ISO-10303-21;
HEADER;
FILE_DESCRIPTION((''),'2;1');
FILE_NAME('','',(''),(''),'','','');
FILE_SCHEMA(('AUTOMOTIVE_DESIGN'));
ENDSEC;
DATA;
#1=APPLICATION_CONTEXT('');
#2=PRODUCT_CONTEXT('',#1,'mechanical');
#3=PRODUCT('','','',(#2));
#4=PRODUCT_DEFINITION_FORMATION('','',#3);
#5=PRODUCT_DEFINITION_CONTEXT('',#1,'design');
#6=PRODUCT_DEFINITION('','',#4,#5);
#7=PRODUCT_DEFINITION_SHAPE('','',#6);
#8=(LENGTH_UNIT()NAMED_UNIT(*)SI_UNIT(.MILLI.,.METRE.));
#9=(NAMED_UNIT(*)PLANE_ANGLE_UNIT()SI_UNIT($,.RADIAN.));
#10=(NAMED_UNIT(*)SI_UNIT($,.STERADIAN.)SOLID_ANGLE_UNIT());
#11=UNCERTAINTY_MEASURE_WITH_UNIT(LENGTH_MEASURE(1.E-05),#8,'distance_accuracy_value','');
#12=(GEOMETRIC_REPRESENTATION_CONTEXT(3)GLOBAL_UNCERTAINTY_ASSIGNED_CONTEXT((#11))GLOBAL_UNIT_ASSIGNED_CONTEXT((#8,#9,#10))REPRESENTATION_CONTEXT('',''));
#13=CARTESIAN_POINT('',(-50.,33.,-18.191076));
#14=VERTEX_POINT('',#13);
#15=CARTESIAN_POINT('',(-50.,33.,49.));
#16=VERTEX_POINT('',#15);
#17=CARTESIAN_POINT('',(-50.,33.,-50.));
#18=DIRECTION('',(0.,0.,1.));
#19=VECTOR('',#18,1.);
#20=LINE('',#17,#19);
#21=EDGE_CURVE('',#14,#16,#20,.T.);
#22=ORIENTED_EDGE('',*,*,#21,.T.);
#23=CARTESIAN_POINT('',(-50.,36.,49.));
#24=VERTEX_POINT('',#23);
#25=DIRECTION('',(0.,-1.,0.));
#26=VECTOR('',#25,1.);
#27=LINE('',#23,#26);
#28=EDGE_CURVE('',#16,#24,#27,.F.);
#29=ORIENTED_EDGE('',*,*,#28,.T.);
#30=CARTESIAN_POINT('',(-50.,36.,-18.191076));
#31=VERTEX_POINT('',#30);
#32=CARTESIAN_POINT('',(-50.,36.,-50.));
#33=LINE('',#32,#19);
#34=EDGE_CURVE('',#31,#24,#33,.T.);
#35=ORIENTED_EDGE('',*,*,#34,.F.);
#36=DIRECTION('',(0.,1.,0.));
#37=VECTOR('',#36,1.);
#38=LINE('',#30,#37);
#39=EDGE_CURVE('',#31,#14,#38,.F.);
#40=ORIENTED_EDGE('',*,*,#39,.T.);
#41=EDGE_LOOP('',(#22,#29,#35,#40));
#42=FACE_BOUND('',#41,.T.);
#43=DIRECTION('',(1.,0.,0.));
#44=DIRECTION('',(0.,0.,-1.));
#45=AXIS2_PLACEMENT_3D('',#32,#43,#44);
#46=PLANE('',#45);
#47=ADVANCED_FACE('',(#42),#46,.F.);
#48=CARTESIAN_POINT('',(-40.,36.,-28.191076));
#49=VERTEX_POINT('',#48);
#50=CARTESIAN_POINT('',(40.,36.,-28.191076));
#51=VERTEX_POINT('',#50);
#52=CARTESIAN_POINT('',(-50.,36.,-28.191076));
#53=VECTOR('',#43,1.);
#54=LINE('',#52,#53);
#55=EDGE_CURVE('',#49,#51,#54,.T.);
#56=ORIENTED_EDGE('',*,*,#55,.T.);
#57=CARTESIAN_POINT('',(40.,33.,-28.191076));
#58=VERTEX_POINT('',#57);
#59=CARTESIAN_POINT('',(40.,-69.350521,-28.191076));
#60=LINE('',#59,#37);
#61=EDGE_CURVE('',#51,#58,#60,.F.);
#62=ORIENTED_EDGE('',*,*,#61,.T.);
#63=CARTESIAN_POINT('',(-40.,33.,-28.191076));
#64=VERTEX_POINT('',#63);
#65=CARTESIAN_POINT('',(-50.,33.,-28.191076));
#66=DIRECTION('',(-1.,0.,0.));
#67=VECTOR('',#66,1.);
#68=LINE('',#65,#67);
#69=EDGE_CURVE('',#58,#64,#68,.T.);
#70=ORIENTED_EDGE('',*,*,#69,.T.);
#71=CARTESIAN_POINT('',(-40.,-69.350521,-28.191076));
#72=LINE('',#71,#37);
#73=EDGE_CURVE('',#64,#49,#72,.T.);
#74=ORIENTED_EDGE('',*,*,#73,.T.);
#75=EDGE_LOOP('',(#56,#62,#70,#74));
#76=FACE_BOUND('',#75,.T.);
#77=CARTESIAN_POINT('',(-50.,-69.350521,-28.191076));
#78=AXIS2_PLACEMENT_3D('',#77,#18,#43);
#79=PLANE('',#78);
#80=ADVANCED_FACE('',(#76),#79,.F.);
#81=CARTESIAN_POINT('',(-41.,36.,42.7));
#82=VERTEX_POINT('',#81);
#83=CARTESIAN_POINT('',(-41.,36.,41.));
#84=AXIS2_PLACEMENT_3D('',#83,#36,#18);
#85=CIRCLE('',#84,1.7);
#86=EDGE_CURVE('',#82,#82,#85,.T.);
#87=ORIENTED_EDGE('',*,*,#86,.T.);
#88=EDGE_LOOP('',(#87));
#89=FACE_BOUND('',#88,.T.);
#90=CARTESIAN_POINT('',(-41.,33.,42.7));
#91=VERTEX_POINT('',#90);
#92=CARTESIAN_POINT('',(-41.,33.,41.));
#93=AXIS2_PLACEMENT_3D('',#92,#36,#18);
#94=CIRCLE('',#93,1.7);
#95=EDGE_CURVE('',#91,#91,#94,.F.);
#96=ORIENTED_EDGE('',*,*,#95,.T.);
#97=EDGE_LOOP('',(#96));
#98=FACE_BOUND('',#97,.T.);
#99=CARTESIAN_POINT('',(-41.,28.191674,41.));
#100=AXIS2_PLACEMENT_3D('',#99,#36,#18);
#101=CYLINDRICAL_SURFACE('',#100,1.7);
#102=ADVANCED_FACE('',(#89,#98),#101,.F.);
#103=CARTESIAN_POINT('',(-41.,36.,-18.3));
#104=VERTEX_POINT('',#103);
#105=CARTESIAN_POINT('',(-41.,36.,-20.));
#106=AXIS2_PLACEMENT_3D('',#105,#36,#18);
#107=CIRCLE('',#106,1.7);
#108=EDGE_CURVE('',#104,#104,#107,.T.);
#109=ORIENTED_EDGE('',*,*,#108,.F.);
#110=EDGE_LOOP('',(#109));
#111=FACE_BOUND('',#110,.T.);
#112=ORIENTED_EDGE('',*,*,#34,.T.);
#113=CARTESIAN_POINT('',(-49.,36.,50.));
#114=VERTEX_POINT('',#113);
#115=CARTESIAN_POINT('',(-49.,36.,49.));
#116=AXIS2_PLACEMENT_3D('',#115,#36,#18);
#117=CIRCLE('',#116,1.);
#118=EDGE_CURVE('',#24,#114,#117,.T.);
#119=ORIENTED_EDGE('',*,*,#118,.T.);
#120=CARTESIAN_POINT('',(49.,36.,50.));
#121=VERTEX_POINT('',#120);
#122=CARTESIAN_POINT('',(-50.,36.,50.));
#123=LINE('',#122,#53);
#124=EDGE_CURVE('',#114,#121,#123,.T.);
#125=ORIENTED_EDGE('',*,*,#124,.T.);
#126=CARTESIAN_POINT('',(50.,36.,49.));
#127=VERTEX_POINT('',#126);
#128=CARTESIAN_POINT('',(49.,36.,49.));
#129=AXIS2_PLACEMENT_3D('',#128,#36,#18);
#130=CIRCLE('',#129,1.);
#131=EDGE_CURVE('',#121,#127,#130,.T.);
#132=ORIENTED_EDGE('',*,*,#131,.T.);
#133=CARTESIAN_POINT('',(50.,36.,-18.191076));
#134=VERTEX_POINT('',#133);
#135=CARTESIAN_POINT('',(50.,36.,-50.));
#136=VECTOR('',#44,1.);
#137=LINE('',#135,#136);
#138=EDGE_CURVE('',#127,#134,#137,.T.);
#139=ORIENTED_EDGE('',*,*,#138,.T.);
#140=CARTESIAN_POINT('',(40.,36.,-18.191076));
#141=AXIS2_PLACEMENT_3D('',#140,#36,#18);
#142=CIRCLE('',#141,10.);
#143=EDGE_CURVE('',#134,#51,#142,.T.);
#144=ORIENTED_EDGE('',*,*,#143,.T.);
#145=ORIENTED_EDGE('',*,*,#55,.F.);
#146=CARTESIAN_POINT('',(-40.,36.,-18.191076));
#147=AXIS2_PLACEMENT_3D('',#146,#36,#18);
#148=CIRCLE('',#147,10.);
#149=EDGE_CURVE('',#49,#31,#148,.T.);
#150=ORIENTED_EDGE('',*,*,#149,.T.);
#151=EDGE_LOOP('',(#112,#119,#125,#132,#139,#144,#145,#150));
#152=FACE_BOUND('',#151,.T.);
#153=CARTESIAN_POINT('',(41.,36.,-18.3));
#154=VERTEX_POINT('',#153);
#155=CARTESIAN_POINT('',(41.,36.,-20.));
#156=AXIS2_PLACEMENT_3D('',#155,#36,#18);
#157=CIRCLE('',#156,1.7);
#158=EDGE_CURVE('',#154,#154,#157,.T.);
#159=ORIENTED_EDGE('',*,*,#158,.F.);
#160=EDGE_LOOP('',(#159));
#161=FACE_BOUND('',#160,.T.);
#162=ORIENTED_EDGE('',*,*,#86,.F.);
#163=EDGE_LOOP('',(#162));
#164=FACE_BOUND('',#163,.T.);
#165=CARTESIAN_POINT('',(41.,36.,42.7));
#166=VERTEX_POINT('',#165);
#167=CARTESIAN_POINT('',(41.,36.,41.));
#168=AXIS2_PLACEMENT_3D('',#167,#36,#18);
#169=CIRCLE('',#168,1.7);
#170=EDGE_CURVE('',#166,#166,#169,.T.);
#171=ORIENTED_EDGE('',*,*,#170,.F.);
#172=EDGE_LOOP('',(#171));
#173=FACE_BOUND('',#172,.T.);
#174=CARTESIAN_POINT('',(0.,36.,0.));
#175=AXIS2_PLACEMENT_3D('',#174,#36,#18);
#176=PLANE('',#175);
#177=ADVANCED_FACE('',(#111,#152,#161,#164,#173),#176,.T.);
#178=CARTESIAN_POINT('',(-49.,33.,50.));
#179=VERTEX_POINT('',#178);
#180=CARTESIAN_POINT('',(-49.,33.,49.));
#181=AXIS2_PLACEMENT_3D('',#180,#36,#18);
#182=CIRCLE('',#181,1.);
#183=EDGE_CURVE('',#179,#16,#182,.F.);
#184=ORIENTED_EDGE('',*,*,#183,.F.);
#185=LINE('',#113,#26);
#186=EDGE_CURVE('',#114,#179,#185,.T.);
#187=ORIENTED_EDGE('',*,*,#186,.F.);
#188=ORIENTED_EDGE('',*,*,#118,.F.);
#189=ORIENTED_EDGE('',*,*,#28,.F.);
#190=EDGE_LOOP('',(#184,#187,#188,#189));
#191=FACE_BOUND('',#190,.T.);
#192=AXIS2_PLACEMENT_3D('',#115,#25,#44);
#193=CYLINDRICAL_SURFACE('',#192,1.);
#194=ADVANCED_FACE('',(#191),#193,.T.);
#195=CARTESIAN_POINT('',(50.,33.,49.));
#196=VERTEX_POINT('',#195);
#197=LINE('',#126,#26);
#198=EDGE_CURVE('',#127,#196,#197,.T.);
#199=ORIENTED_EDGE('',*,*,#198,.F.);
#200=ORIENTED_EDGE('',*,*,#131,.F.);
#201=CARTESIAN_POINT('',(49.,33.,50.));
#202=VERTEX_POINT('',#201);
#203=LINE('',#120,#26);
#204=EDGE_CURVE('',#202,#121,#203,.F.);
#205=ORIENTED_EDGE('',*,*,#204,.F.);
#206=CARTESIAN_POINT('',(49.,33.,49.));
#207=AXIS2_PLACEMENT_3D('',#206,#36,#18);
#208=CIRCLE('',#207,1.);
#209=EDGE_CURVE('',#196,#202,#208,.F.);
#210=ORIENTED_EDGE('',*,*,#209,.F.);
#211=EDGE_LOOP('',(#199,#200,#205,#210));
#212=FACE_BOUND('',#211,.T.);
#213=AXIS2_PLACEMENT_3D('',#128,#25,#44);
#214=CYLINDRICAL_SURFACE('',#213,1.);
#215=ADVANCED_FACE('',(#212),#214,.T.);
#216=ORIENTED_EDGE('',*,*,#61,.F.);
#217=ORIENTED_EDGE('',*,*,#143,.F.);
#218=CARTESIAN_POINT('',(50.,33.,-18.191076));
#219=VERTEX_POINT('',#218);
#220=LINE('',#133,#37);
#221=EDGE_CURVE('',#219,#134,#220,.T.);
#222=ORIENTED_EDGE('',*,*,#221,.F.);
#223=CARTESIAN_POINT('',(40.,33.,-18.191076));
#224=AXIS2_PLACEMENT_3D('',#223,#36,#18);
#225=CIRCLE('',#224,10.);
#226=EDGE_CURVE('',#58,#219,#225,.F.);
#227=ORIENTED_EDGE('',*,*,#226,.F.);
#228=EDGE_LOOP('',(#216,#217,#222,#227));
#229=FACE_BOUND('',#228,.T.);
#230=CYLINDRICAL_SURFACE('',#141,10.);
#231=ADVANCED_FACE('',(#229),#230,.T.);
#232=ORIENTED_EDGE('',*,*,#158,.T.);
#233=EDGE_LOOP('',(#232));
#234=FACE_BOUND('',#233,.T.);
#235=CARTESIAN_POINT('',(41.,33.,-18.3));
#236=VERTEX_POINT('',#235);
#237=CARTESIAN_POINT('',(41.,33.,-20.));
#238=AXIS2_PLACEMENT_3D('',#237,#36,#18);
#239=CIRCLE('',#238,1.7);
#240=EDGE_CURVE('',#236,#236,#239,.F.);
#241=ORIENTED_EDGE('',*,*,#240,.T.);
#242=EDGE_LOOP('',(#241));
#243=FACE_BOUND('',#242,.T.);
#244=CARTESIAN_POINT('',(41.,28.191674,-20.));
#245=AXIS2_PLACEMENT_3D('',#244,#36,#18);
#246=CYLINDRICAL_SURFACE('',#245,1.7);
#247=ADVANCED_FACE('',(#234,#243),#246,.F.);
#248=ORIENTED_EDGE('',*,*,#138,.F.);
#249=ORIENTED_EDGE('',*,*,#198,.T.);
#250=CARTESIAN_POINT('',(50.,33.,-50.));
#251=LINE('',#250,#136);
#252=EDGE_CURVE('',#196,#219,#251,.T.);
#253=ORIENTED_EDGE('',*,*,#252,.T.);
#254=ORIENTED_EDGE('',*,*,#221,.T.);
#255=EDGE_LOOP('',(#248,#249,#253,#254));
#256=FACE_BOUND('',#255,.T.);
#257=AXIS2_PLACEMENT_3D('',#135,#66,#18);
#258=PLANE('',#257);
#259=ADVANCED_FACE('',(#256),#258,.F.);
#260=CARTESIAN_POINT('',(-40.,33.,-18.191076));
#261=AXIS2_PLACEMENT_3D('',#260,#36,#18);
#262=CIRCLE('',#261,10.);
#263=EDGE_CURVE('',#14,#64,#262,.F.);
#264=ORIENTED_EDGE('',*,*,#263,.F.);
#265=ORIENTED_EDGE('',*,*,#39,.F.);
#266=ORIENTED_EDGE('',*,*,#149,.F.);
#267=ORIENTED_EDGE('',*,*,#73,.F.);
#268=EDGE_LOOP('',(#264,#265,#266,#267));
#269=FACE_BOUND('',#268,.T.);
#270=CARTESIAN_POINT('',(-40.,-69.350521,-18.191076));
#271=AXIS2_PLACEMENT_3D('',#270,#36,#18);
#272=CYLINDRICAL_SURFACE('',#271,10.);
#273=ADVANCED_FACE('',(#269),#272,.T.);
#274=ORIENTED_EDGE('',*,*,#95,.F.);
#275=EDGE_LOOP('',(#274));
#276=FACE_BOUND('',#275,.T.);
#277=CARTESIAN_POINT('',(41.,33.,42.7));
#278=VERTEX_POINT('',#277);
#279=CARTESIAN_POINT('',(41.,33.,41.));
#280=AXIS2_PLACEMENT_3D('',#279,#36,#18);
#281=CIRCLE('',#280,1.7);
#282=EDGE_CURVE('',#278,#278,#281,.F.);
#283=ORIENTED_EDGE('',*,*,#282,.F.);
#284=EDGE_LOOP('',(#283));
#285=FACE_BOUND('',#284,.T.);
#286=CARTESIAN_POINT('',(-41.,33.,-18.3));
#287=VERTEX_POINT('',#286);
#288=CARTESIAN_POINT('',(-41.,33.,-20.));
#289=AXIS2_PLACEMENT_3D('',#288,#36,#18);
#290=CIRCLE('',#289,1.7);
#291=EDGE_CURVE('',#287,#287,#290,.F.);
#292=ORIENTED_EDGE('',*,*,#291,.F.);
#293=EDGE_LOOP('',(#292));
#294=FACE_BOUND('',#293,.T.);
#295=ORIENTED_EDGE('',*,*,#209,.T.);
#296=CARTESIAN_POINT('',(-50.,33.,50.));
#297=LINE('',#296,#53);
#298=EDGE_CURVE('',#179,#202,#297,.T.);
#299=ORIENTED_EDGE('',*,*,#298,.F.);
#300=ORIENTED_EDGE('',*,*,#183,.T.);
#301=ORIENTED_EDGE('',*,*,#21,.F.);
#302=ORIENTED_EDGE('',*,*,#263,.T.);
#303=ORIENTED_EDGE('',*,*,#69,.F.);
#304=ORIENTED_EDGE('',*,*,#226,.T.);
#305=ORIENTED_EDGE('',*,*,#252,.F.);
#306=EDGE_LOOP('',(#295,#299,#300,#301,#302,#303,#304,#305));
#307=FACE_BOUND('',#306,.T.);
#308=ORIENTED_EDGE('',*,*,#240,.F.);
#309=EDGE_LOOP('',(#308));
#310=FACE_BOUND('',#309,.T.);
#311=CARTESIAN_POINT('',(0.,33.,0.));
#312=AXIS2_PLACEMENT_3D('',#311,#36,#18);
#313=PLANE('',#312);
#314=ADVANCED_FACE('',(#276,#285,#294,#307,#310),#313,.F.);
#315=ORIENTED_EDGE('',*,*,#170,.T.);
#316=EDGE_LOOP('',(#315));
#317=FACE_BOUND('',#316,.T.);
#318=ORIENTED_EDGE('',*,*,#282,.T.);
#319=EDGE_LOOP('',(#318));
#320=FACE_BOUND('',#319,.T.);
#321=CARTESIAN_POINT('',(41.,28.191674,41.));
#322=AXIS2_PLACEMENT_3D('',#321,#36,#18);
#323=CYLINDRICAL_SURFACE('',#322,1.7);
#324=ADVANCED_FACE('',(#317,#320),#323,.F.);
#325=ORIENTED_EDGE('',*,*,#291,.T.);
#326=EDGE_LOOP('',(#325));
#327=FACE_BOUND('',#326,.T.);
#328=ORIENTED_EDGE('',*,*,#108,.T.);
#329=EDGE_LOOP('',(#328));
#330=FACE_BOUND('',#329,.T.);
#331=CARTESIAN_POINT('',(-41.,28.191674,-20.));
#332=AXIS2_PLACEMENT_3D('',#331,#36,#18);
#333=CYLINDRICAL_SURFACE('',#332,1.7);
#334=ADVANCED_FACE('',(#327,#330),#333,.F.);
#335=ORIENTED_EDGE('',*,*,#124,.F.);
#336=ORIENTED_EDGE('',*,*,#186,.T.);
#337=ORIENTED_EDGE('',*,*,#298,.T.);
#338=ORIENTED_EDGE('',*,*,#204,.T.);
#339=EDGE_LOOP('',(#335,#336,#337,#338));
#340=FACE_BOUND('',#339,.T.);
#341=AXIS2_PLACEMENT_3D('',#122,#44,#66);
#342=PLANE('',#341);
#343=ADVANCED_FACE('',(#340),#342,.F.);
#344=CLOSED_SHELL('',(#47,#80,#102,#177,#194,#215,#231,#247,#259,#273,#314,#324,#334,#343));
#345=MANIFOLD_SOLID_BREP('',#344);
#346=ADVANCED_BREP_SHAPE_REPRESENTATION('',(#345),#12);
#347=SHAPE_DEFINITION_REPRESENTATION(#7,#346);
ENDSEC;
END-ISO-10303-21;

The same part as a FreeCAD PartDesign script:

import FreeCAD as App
import Part
import Sketcher
from FreeCAD import Vector


def edges_at(feature, points):
    """Names of the edges that pass closest to the given points."""
    edges = feature.Shape.Edges
    near = lambda p: min(range(len(edges)), key=lambda i: edges[i].distToShape(Part.Vertex(*p))[0])
    return sorted({f"Edge{near(p) + 1}" for p in points})


def add_polygon(sketch, points):
    """Adds a closed chain of lines whose ends are joined by coincident constraints."""
    first, n = sketch.GeometryCount, len(points)
    for a, b in zip(points, points[1:] + points[:1]):
        sketch.addGeometry(Part.LineSegment(App.Vector(*a, 0), App.Vector(*b, 0)), False)
    for i in range(n):
        sketch.addConstraint(Sketcher.Constraint("Coincident", first + i, 2, first + (i + 1) % n, 1))

doc = App.newDocument("Part")
body = doc.addObject("PartDesign::Body", "Body")

sketch1 = doc.addObject("Sketcher::SketchObject", "Sketch")
body.addObject(sketch1)
sketch1.AttachmentSupport = (doc.XZ_Plane, [""])
sketch1.MapMode = "FlatFace"
sketch1.AttachmentOffset = App.Placement(Vector(0, 0, -33), App.Rotation())
add_polygon(sketch1, [(-50, -50), (-50, 50), (50, 50), (50, -50)])
sketch1.addConstraint(Sketcher.Constraint("Vertical", 0))
sketch1.addConstraint(Sketcher.Constraint("Horizontal", 1))
sketch1.addConstraint(Sketcher.Constraint("Vertical", 2))
sketch1.addConstraint(Sketcher.Constraint("Horizontal", 3))
sketch1.addConstraint(Sketcher.Constraint("Symmetric", 0, 2, 2, 2, -1, 1))
sketch1.addConstraint(Sketcher.Constraint("Equal", 3, 0))
sketch1.addConstraint(Sketcher.Constraint("DistanceX", 1, 1, 1, 2, 100.0))
pad1 = doc.addObject("PartDesign::Pad", "Pad")
body.addObject(pad1)
pad1.Profile = sketch1
pad1.Length = 3
pad1.Reversed = True

sketch2 = doc.addObject("Sketcher::SketchObject", "Sketch001")
body.addObject(sketch2)
sketch2.AttachmentSupport = (doc.XZ_Plane, [""])
sketch2.MapMode = "FlatFace"
sketch2.AttachmentOffset = App.Placement(Vector(0, 0, -36), App.Rotation())
sketch2.addGeometry(Part.Circle(Vector(-41, -20, 0), Vector(0, 0, 1), 1.7), False)
sketch2.addGeometry(Part.Circle(Vector(41, -20, 0), Vector(0, 0, 1), 1.7), False)
sketch2.addGeometry(Part.Circle(Vector(41, 41, 0), Vector(0, 0, 1), 1.7), False)
sketch2.addGeometry(Part.Circle(Vector(-41, 41, 0), Vector(0, 0, 1), 1.7), False)
sketch2.addConstraint(Sketcher.Constraint("Equal", 0, 1))
sketch2.addConstraint(Sketcher.Constraint("Equal", 1, 2))
sketch2.addConstraint(Sketcher.Constraint("Equal", 2, 3))
sketch2.addConstraint(Sketcher.Constraint("Symmetric", 0, 3, 1, 3, -2))
sketch2.addConstraint(Sketcher.Constraint("Symmetric", 2, 3, 3, 3, -2))
sketch2.addConstraint(Sketcher.Constraint("Vertical", 1, 3, 2, 3))
sketch2.addConstraint(Sketcher.Constraint("Diameter", 0, 3.4))
sketch2.addConstraint(Sketcher.Constraint("DistanceX", 0, 3, -1, 1, 41.0))
sketch2.addConstraint(Sketcher.Constraint("DistanceY", 0, 3, -1, 1, 20.0))
sketch2.addConstraint(Sketcher.Constraint("DistanceY", -1, 1, 2, 3, 41.0))
pocket1 = doc.addObject("PartDesign::Pocket", "Pocket")
body.addObject(pocket1)
pocket1.Profile = sketch2
pocket1.Length = 3
pocket1.Reversed = True

sketch3 = doc.addObject("Sketcher::SketchObject", "Sketch002")
body.addObject(sketch3)
sketch3.AttachmentSupport = (doc.XZ_Plane, [""])
sketch3.MapMode = "FlatFace"
sketch3.AttachmentOffset = App.Placement(Vector(0, 0, -36), App.Rotation())
add_polygon(sketch3, [(-50, -50), (-50, -28.191076), (50, -28.191076), (50, -50)])
sketch3.addConstraint(Sketcher.Constraint("Vertical", 0))
sketch3.addConstraint(Sketcher.Constraint("Horizontal", 1))
sketch3.addConstraint(Sketcher.Constraint("Vertical", 2))
sketch3.addConstraint(Sketcher.Constraint("Horizontal", 3))
sketch3.addConstraint(Sketcher.Constraint("DistanceX", 1, 1, 1, 2, 100.0))
sketch3.addConstraint(Sketcher.Constraint("DistanceX", 0, 2, -1, 1, 50.0))
sketch3.addConstraint(Sketcher.Constraint("DistanceY", 2, 2, -1, 1, 50.0))
sketch3.addConstraint(Sketcher.Constraint("DistanceY", 0, 1, 0, 2, 21.808924))
pocket2 = doc.addObject("PartDesign::Pocket", "Pocket001")
body.addObject(pocket2)
pocket2.Profile = sketch3
pocket2.Length = 3
pocket2.Reversed = True
doc.recompute()

fillet = doc.addObject("PartDesign::Fillet", "Fillet")
body.addObject(fillet)
fillet.Base = (pocket2, edges_at(pocket2, [(-50, 34.5, -28.191), (50, 34.5, -28.191)]))
fillet.Radius = 10
doc.recompute()

fillet2 = doc.addObject("PartDesign::Fillet", "Fillet001")
body.addObject(fillet2)
fillet2.Base = (fillet, edges_at(fillet, [(50, 34.5, 50), (-50, 34.5, 50)]))
fillet2.Radius = 1

doc.recompute()
